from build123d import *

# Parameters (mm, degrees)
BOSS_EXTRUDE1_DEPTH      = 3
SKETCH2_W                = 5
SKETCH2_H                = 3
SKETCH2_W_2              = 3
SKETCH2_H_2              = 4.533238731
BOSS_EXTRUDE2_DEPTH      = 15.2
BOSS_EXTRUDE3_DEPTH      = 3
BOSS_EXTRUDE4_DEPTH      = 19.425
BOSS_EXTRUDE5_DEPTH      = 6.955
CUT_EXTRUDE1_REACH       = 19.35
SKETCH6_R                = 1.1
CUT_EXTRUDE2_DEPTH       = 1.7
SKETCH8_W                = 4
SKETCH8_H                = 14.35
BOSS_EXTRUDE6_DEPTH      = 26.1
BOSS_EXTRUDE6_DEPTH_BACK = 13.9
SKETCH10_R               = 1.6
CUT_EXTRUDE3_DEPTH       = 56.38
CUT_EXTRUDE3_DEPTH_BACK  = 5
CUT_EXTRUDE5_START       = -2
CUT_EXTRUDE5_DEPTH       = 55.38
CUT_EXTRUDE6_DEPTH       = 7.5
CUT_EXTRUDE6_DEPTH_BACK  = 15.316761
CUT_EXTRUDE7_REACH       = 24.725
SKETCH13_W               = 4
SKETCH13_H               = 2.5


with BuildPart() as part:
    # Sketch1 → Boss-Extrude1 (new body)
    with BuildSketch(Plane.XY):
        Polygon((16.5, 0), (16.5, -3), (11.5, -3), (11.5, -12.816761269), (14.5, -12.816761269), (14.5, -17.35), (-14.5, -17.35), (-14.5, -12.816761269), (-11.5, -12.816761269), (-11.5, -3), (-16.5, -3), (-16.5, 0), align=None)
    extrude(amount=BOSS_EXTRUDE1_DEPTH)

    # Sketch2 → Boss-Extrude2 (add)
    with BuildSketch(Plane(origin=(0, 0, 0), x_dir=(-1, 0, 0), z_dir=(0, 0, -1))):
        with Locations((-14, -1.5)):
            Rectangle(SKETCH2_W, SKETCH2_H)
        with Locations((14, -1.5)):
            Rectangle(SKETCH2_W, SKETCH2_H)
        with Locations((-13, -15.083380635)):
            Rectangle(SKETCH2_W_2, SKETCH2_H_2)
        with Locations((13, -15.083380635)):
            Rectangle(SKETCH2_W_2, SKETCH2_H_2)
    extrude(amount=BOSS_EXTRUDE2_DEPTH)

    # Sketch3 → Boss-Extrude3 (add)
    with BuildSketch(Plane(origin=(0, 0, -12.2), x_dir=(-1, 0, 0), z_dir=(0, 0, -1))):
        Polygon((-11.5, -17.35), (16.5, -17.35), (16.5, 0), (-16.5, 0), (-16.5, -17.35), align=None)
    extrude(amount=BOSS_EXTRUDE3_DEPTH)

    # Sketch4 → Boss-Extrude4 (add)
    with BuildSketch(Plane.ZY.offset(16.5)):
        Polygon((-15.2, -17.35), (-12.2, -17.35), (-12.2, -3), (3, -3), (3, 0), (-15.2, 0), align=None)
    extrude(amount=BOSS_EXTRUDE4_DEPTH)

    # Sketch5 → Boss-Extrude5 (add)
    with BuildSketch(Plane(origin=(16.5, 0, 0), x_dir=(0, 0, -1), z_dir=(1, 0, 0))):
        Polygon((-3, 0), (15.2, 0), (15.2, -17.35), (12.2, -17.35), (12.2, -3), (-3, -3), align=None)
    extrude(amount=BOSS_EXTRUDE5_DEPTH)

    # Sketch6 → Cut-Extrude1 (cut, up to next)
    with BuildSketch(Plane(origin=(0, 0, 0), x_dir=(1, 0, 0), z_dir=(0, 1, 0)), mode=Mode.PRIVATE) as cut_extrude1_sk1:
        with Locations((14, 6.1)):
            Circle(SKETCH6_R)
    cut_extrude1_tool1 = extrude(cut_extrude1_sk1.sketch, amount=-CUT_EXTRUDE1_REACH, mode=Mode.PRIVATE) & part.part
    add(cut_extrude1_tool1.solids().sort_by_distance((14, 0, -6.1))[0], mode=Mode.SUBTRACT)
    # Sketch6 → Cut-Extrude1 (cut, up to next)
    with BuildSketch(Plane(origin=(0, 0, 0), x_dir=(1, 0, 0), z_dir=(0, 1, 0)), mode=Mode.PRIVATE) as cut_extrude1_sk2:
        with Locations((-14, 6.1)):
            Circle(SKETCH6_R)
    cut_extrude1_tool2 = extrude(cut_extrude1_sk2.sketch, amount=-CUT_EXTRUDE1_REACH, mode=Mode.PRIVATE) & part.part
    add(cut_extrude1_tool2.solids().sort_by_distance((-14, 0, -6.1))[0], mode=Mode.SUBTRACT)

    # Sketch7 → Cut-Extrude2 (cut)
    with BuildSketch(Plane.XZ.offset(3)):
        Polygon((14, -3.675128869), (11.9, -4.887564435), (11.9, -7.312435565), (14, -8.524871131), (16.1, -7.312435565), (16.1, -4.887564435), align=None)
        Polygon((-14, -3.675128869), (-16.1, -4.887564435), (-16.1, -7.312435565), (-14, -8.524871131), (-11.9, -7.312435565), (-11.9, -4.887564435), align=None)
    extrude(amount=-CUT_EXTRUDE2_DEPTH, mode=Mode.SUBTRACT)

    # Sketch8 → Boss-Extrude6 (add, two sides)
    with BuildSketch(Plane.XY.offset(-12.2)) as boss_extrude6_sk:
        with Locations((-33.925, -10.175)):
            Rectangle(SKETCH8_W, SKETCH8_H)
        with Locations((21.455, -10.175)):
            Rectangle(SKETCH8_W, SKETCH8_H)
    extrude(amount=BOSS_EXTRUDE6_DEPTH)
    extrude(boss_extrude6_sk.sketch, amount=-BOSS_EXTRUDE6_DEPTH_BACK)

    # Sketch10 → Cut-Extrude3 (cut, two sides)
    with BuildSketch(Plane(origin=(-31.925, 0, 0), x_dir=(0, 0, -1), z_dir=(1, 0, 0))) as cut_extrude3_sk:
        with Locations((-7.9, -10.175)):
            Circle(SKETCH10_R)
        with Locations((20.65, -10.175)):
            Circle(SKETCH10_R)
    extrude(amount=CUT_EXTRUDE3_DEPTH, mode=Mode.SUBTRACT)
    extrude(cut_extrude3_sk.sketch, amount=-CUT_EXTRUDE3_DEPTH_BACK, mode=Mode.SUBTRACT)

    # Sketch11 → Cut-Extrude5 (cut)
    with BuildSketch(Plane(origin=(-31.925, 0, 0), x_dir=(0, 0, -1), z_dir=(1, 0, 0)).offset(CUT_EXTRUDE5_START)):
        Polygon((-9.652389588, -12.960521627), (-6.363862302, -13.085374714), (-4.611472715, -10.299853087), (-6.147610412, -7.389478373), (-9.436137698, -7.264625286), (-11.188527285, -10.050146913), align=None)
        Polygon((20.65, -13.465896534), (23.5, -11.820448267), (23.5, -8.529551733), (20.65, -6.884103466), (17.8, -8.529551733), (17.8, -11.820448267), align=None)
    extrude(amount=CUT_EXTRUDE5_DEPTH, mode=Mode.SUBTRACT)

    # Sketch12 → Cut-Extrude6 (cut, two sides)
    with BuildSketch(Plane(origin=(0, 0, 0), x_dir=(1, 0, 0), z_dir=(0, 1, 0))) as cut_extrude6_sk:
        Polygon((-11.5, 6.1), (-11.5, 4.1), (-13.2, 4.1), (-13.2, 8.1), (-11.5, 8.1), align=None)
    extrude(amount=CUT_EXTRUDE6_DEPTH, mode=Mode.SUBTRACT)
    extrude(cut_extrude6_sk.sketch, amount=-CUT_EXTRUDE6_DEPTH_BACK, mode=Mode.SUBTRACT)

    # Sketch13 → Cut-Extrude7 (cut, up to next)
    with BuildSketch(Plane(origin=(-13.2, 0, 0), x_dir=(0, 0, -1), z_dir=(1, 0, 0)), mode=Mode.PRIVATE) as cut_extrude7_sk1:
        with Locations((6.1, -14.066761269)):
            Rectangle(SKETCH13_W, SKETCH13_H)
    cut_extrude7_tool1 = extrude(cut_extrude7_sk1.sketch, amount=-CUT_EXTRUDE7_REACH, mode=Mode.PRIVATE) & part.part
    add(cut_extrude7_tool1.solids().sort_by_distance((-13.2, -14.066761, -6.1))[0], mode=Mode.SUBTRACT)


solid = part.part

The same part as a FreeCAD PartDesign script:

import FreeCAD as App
import Part
import Sketcher
from FreeCAD import Vector
Q = App.Units.Quantity

doc = App.newDocument("Part")
body = doc.addObject("PartDesign::Body", "Body")

# Sketch on XY plane
sketch1 = body.newObject("Sketcher::SketchObject", "Sketch")
sketch1.AttachmentSupport = (doc.getObject("XY_Plane"), [""])
sketch1.MapMode = "FlatFace"
sketch1.addGeometry([
    Part.LineSegment(Vector(16.5, -3, 0), Vector(16.5, 0, 0)),  # 0
    Part.LineSegment(Vector(16.5, 0, 0), Vector(-16.5, 0, 0)),  # 1
    Part.LineSegment(Vector(-16.5, 0, 0), Vector(-16.5, -3, 0)),  # 2
    Part.LineSegment(Vector(-16.5, -3, 0), Vector(-11.5, -3, 0)),  # 3
    Part.LineSegment(Vector(-11.5, -3, 0), Vector(-11.5, -12.816761, 0)),  # 4
    Part.LineSegment(Vector(-11.5, -12.816761, 0), Vector(-14.5, -12.816761, 0)),  # 5
    Part.LineSegment(Vector(-14.5, -12.816761, 0), Vector(-14.5, -17.35, 0)),  # 6
    Part.LineSegment(Vector(-14.5, -17.35, 0), Vector(14.5, -17.35, 0)),  # 7
    Part.LineSegment(Vector(14.5, -17.35, 0), Vector(14.5, -12.816761, 0)),  # 8
    Part.LineSegment(Vector(14.5, -12.816761, 0), Vector(11.5, -12.816761, 0)),  # 9
    Part.LineSegment(Vector(11.5, -12.816761, 0), Vector(11.5, -3, 0)),  # 10
    Part.LineSegment(Vector(11.5, -3, 0), Vector(16.5, -3, 0)),  # 11
], False)
sketch1.addConstraint([
    Sketcher.Constraint("Coincident", 0, 2, 1, 1),
    Sketcher.Constraint("Coincident", 1, 2, 2, 1),
    Sketcher.Constraint("Coincident", 2, 2, 3, 1),
    Sketcher.Constraint("Coincident", 3, 2, 4, 1),
    Sketcher.Constraint("Coincident", 4, 2, 5, 1),
    Sketcher.Constraint("Coincident", 5, 2, 6, 1),
    Sketcher.Constraint("Coincident", 6, 2, 7, 1),
    Sketcher.Constraint("Coincident", 7, 2, 8, 1),
    Sketcher.Constraint("Coincident", 8, 2, 9, 1),
    Sketcher.Constraint("Coincident", 9, 2, 10, 1),
    Sketcher.Constraint("Coincident", 10, 2, 11, 1),
    Sketcher.Constraint("Coincident", 11, 2, 0, 1),
    Sketcher.Constraint("Vertical", 0),
    Sketcher.Constraint("Horizontal", 1),
    Sketcher.Constraint("Vertical", 2),
    Sketcher.Constraint("Horizontal", 3),
    Sketcher.Constraint("Vertical", 4),
    Sketcher.Constraint("Horizontal", 5),
    Sketcher.Constraint("Vertical", 6),
    Sketcher.Constraint("Horizontal", 7),
    Sketcher.Constraint("Vertical", 8),
    Sketcher.Constraint("Horizontal", 9),
    Sketcher.Constraint("Vertical", 10),
    Sketcher.Constraint("Horizontal", 11),
    Sketcher.Constraint("Symmetric", 0, 2, 1, 2, -1, 1),
    Sketcher.Constraint("Symmetric", 5, 2, 8, 2, -2),
    Sketcher.Constraint("Symmetric", 3, 2, 10, 2, -2),
    Sketcher.Constraint("Equal", 9, 0),
    Sketcher.Constraint("DistanceX", 1, 2, 1, 1, 33.0),
    Sketcher.Constraint("DistanceX", 3, 1, 3, 2, 5.0),
    Sketcher.Constraint("DistanceX", 5, 2, 5, 1, 3.0),
    Sketcher.Constraint("DistanceY", 6, 2, -1, 1, 17.35),
    Sketcher.Constraint("DistanceY", 4, 2, 4, 1, 9.816761),
])
pad1 = body.newObject("PartDesign::Pad", "Pad")
pad1.Profile = sketch1
pad1.Length = 3

# Sketch on XY plane
sketch2 = body.newObject("Sketcher::SketchObject", "Sketch001")
sketch2.AttachmentSupport = (doc.getObject("XY_Plane"), [""])
sketch2.MapMode = "FlatFace"
sketch2.addGeometry([
    Part.LineSegment(Vector(16.5, 0, 0), Vector(16.5, -3, 0)),  # 0
    Part.LineSegment(Vector(16.5, -3, 0), Vector(11.5, -3, 0)),  # 1
    Part.LineSegment(Vector(11.5, -3, 0), Vector(11.5, 0, 0)),  # 2
    Part.LineSegment(Vector(11.5, 0, 0), Vector(16.5, 0, 0)),  # 3
    Part.LineSegment(Vector(-11.5, 0, 0), Vector(-11.5, -3, 0)),  # 4
    Part.LineSegment(Vector(-11.5, -3, 0), Vector(-16.5, -3, 0)),  # 5
    Part.LineSegment(Vector(-16.5, -3, 0), Vector(-16.5, 0, 0)),  # 6
    Part.LineSegment(Vector(-16.5, 0, 0), Vector(-11.5, 0, 0)),  # 7
    Part.LineSegment(Vector(14.5, -12.816761, 0), Vector(14.5, -17.35, 0)),  # 8
    Part.LineSegment(Vector(14.5, -17.35, 0), Vector(11.5, -17.35, 0)),  # 9
    Part.LineSegment(Vector(11.5, -17.35, 0), Vector(11.5, -12.816761, 0)),  # 10
    Part.LineSegment(Vector(11.5, -12.816761, 0), Vector(14.5, -12.816761, 0)),  # 11
    Part.LineSegment(Vector(-11.5, -12.816761, 0), Vector(-11.5, -17.35, 0)),  # 12
    Part.LineSegment(Vector(-11.5, -17.35, 0), Vector(-14.5, -17.35, 0)),  # 13
    Part.LineSegment(Vector(-14.5, -17.35, 0), Vector(-14.5, -12.816761, 0)),  # 14
    Part.LineSegment(Vector(-14.5, -12.816761, 0), Vector(-11.5, -12.816761, 0)),  # 15
], False)
sketch2.addConstraint([
    Sketcher.Constraint("Coincident", 0, 2, 1, 1),
    Sketcher.Constraint("Coincident", 1, 2, 2, 1),
    Sketcher.Constraint("Coincident", 2, 2, 3, 1),
    Sketcher.Constraint("Coincident", 3, 2, 0, 1),
    Sketcher.Constraint("Coincident", 4, 2, 5, 1),
    Sketcher.Constraint("Coincident", 5, 2, 6, 1),
    Sketcher.Constraint("Coincident", 6, 2, 7, 1),
    Sketcher.Constraint("Coincident", 7, 2, 4, 1),
    Sketcher.Constraint("Coincident", 8, 2, 9, 1),
    Sketcher.Constraint("Coincident", 9, 2, 10, 1),
    Sketcher.Constraint("Coincident", 10, 2, 11, 1),
    Sketcher.Constraint("Coincident", 11, 2, 8, 1),
    Sketcher.Constraint("Coincident", 12, 2, 13, 1),
    Sketcher.Constraint("Coincident", 13, 2, 14, 1),
    Sketcher.Constraint("Coincident", 14, 2, 15, 1),
    Sketcher.Constraint("Coincident", 15, 2, 12, 1),
    Sketcher.Constraint("Vertical", 0),
    Sketcher.Constraint("Horizontal", 1),
    Sketcher.Constraint("Vertical", 2),
    Sketcher.Constraint("Horizontal", 3),
    Sketcher.Constraint("Vertical", 4),
    Sketcher.Constraint("Horizontal", 5),
    Sketcher.Constraint("Vertical", 6),
    Sketcher.Constraint("Horizontal", 7),
    Sketcher.Constraint("Vertical", 8),
    Sketcher.Constraint("Horizontal", 9),
    Sketcher.Constraint("Vertical", 10),
    Sketcher.Constraint("Horizontal", 11),
    Sketcher.Constraint("Vertical", 12),
    Sketcher.Constraint("Horizontal", 13),
    Sketcher.Constraint("Vertical", 14),
    Sketcher.Constraint("Horizontal", 15),
    Sketcher.Constraint("Symmetric", 3, 2, 6, 2, -1, 1),
    Sketcher.Constraint("Symmetric", 1, 2, 4, 2, -2),
    Sketcher.Constraint("Symmetric", 9, 2, 12, 2, -2),
    Sketcher.Constraint("Symmetric", 11, 2, 14, 2, -2),
    Sketcher.Constraint("PointOnObject", 2, 2, -1),
    Sketcher.Constraint("Vertical", 2, 2, 9, 2),
    Sketcher.Constraint("Equal", 15, 0),
    Sketcher.Constraint("DistanceX", 1, 2, 1, 1, 5.0),
    Sketcher.Constraint("DistanceX", 9, 2, 9, 1, 3.0),
    Sketcher.Constraint("DistanceX", 4, 2, 1, 2, 23.0),
    Sketcher.Constraint("DistanceY", 8, 2, -1, 1, 17.35),
    Sketcher.Constraint("DistanceY", 8, 2, 8, 1, 4.533239),
])
pad2 = body.newObject("PartDesign::Pad", "Pad001")
pad2.Profile = sketch2
pad2.Length = 15.2
pad2.Reversed = True

# Sketch on XY plane
sketch3 = body.newObject("Sketcher::SketchObject", "Sketch002")
sketch3.AttachmentSupport = (doc.getObject("XY_Plane"), [""])
sketch3.MapMode = "FlatFace"
sketch3.AttachmentOffset = App.Placement(Vector(0, 0, -12.2), App.Rotation())
sketch3.addGeometry([
    Part.LineSegment(Vector(-16.5, -17.35, 0), Vector(-16.5, 0, 0)),
    Part.LineSegment(Vector(-16.5, 0, 0), Vector(16.5, 0, 0)),
    Part.LineSegment(Vector(16.5, 0, 0), Vector(16.5, -17.35, 0)),
    Part.LineSegment(Vector(16.5, -17.35, 0), Vector(-16.5, -17.35, 0)),
], False)
sketch3.addConstraint([
    Sketcher.Constraint("Coincident", 0, 2, 1, 1),
    Sketcher.Constraint("Coincident", 1, 2, 2, 1),
    Sketcher.Constraint("Coincident", 2, 2, 3, 1),
    Sketcher.Constraint("Coincident", 3, 2, 0, 1),
    Sketcher.Constraint("Vertical", 0),
    Sketcher.Constraint("Horizontal", 1),
    Sketcher.Constraint("Vertical", 2),
    Sketcher.Constraint("Horizontal", 3),
    Sketcher.Constraint("Symmetric", 0, 2, 1, 2, -1, 1),
    Sketcher.Constraint("DistanceX", 1, 1, 1, 2, 33.0),
    Sketcher.Constraint("DistanceY", 0, 1, 0, 2, 17.35),
])
pad3 = body.newObject("PartDesign::Pad", "Pad002")
pad3.Profile = sketch3
pad3.Length = 3
pad3.Reversed = True

# Sketch on YZ plane
sketch4 = body.newObject("Sketcher::SketchObject", "Sketch003")
sketch4.AttachmentSupport = (doc.getObject("YZ_Plane"), [""])
sketch4.MapMode = "FlatFace"
sketch4.AttachmentOffset = App.Placement(Vector(0, 0, -16.5), App.Rotation())
sketch4.addGeometry([
    Part.LineSegment(Vector(-17.35, -15.2, 0), Vector(-17.35, -12.2, 0)),  # 0
    Part.LineSegment(Vector(-17.35, -12.2, 0), Vector(-3, -12.2, 0)),  # 1
    Part.LineSegment(Vector(-3, -12.2, 0), Vector(-3, 3, 0)),  # 2
    Part.LineSegment(Vector(-3, 3, 0), Vector(0, 3, 0)),  # 3
    Part.LineSegment(Vector(0, 3, 0), Vector(0, -15.2, 0)),  # 4
    Part.LineSegment(Vector(0, -15.2, 0), Vector(-17.35, -15.2, 0)),  # 5
], False)
sketch4.addConstraint([
    Sketcher.Constraint("Coincident", 0, 2, 1, 1),
    Sketcher.Constraint("Coincident", 1, 2, 2, 1),
    Sketcher.Constraint("Coincident", 2, 2, 3, 1),
    Sketcher.Constraint("Coincident", 3, 2, 4, 1),
    Sketcher.Constraint("Coincident", 4, 2, 5, 1),
    Sketcher.Constraint("Coincident", 5, 2, 0, 1),
    Sketcher.Constraint("Vertical", 0),
    Sketcher.Constraint("Horizontal", 1),
    Sketcher.Constraint("Vertical", 2),
    Sketcher.Constraint("Horizontal", 3),
    Sketcher.Constraint("Vertical", 4),
    Sketcher.Constraint("Horizontal", 5),
    Sketcher.Constraint("PointOnObject", 3, 2, -2),
    Sketcher.Constraint("Equal", 3, 0),
    Sketcher.Constraint("DistanceX", 3, 1, 3, 2, 3.0),
    Sketcher.Constraint("DistanceY", 2, 1, 2, 2, 15.2),
    Sketcher.Constraint("DistanceY", -1, 1, 2, 2, 3.0),
    Sketcher.Constraint("DistanceX", 1, 1, 1, 2, 14.35),
])
pad4 = body.newObject("PartDesign::Pad", "Pad003")
pad4.Profile = sketch4
pad4.Length = 19.425
pad4.Reversed = True

# Sketch on YZ plane
sketch5 = body.newObject("Sketcher::SketchObject", "Sketch004")
sketch5.AttachmentSupport = (doc.getObject("YZ_Plane"), [""])
sketch5.MapMode = "FlatFace"
sketch5.AttachmentOffset = App.Placement(Vector(0, 0, 16.5), App.Rotation())
sketch5.addGeometry([
    Part.LineSegment(Vector(0, -15.2, 0), Vector(0, 3, 0)),  # 0
    Part.LineSegment(Vector(0, 3, 0), Vector(-3, 3, 0)),  # 1
    Part.LineSegment(Vector(-3, 3, 0), Vector(-3, -12.2, 0)),  # 2
    Part.LineSegment(Vector(-3, -12.2, 0), Vector(-17.35, -12.2, 0)),  # 3
    Part.LineSegment(Vector(-17.35, -12.2, 0), Vector(-17.35, -15.2, 0)),  # 4
    Part.LineSegment(Vector(-17.35, -15.2, 0), Vector(0, -15.2, 0)),  # 5
], False)
sketch5.addConstraint([
    Sketcher.Constraint("Coincident", 0, 2, 1, 1),
    Sketcher.Constraint("Coincident", 1, 2, 2, 1),
    Sketcher.Constraint("Coincident", 2, 2, 3, 1),
    Sketcher.Constraint("Coincident", 3, 2, 4, 1),
    Sketcher.Constraint("Coincident", 4, 2, 5, 1),
    Sketcher.Constraint("Coincident", 5, 2, 0, 1),
    Sketcher.Constraint("Vertical", 0),
    Sketcher.Constraint("Horizontal", 1),
    Sketcher.Constraint("Vertical", 2),
    Sketcher.Constraint("Horizontal", 3),
    Sketcher.Constraint("Vertical", 4),
    Sketcher.Constraint("Horizontal", 5),
    Sketcher.Constraint("PointOnObject", 0, 2, -2),
    Sketcher.Constraint("Equal", 1, 4),
    Sketcher.Constraint("DistanceX", 1, 2, 1, 1, 3.0),
    Sketcher.Constraint("DistanceY", 0, 1, 0, 2, 18.2),
    Sketcher.Constraint("DistanceY", -1, 1, 0, 2, 3.0),
    Sketcher.Constraint("DistanceX", 3, 2, 3, 1, 14.35),
])
pad5 = body.newObject("PartDesign::Pad", "Pad004")
pad5.Profile = sketch5
pad5.Length = 6.955

# Sketch on XZ plane
sketch6 = body.newObject("Sketcher::SketchObject", "Sketch005")
sketch6.AttachmentSupport = (doc.getObject("XZ_Plane"), [""])
sketch6.MapMode = "FlatFace"
sketch6.addGeometry(Part.Circle(Vector(14, -6.1, 0), Vector(0, 0, 1), 1.1), False)
sketch6.addConstraint([
    Sketcher.Constraint("Diameter", 0, 2.2),
    Sketcher.Constraint("DistanceX", -1, 1, 0, 3, 14.0),
    Sketcher.Constraint("DistanceY", 0, 3, -1, 1, 6.1),
])
pocket1 = body.newObject("PartDesign::Pocket", "Pocket")
pocket1.Profile = sketch6
pocket1.Type = "UpToFirst"
pocket1.Reversed = True

# Sketch on XZ plane
sketch7 = body.newObject("Sketcher::SketchObject", "Sketch006")
sketch7.AttachmentSupport = (doc.getObject("XZ_Plane"), [""])
sketch7.MapMode = "FlatFace"
sketch7.addGeometry(Part.Circle(Vector(-14, -6.1, 0), Vector(0, 0, 1), 1.1), False)
sketch7.addConstraint([
    Sketcher.Constraint("Diameter", 0, 2.2),
    Sketcher.Constraint("DistanceX", 0, 3, -1, 1, 14.0),
    Sketcher.Constraint("DistanceY", 0, 3, -1, 1, 6.1),
])
pocket2 = body.newObject("PartDesign::Pocket", "Pocket001")
pocket2.Profile = sketch7
pocket2.Type = "UpToFirst"
pocket2.Reversed = True

# Sketch on XZ plane
sketch8 = body.newObject("Sketcher::SketchObject", "Sketch007")
sketch8.AttachmentSupport = (doc.getObject("XZ_Plane"), [""])
sketch8.MapMode = "FlatFace"
sketch8.AttachmentOffset = App.Placement(Vector(0, 0, 3), App.Rotation())
sketch8.addGeometry([
    Part.LineSegment(Vector(14, -3.675129, 0), Vector(11.9, -4.887564, 0)),  # 0
    Part.LineSegment(Vector(11.9, -4.887564, 0), Vector(11.9, -7.312436, 0)),  # 1
    Part.LineSegment(Vector(11.9, -7.312436, 0), Vector(14, -8.524871, 0)),  # 2
    Part.LineSegment(Vector(14, -8.524871, 0), Vector(16.1, -7.312436, 0)),  # 3
    Part.LineSegment(Vector(16.1, -7.312436, 0), Vector(16.1, -4.887564, 0)),  # 4
    Part.LineSegment(Vector(16.1, -4.887564, 0), Vector(14, -3.675129, 0)),  # 5
    Part.LineSegment(Vector(-14, -3.675129, 0), Vector(-16.1, -4.887564, 0)),  # 6
    Part.LineSegment(Vector(-16.1, -4.887564, 0), Vector(-16.1, -7.312436, 0)),  # 7
    Part.LineSegment(Vector(-16.1, -7.312436, 0), Vector(-14, -8.524871, 0)),  # 8
    Part.LineSegment(Vector(-14, -8.524871, 0), Vector(-11.9, -7.312436, 0)),  # 9
    Part.LineSegment(Vector(-11.9, -7.312436, 0), Vector(-11.9, -4.887564, 0)),  # 10
    Part.LineSegment(Vector(-11.9, -4.887564, 0), Vector(-14, -3.675129, 0)),  # 11
], False)
sketch8.addConstraint([
    Sketcher.Constraint("Coincident", 0, 2, 1, 1),
    Sketcher.Constraint("Coincident", 1, 2, 2, 1),
    Sketcher.Constraint("Coincident", 2, 2, 3, 1),
    Sketcher.Constraint("Coincident", 3, 2, 4, 1),
    Sketcher.Constraint("Coincident", 4, 2, 5, 1),
    Sketcher.Constraint("Coincident", 5, 2, 0, 1),
    Sketcher.Constraint("Coincident", 6, 2, 7, 1),
    Sketcher.Constraint("Coincident", 7, 2, 8, 1),
    Sketcher.Constraint("Coincident", 8, 2, 9, 1),
    Sketcher.Constraint("Coincident", 9, 2, 10, 1),
    Sketcher.Constraint("Coincident", 10, 2, 11, 1),
    Sketcher.Constraint("Coincident", 11, 2, 6, 1),
    Sketcher.Constraint("Vertical", 1),
    Sketcher.Constraint("Vertical", 4),
    Sketcher.Constraint("Vertical", 7),
    Sketcher.Constraint("Vertical", 10),
    Sketcher.Constraint("Symmetric", 4, 2, 6, 2, -2),
    Sketcher.Constraint("Symmetric", 2, 2, 8, 2, -2),
    Sketcher.Constraint("Symmetric", 1, 2, 9, 2, -2),
    Sketcher.Constraint("Symmetric", 5, 2, 11, 2, -2),
    Sketcher.Constraint("Parallel", 0, 3),
    Sketcher.Constraint("Parallel", 2, 5),
    Sketcher.Constraint("Parallel", 3, 6),
    Sketcher.Constraint("Parallel", 5, 8),
    Sketcher.Constraint("Parallel", 8, 11),
    Sketcher.Constraint("Horizontal", 1, 2, 3, 2),
    Sketcher.Constraint("Horizontal", 0, 2, 4, 2),
    Sketcher.Constraint("Angle", 0, Q("-150 deg")),
    Sketcher.Constraint("DistanceX", -1, 1, 2, 2, 14.0),
    Sketcher.Constraint("DistanceX", -1, 1, 0, 2, 11.9),
    Sketcher.Constraint("DistanceY", 1, 2, 1, 1, 2.424871),
    Sketcher.Constraint("DistanceY", 2, 2, -1, 1, 8.524871),
])
pocket3 = body.newObject("PartDesign::Pocket", "Pocket002")
pocket3.Profile = sketch8
pocket3.Length = 1.7

# Sketch on XY plane
sketch9 = body.newObject("Sketcher::SketchObject", "Sketch008")
sketch9.AttachmentSupport = (doc.getObject("XY_Plane"), [""])
sketch9.MapMode = "FlatFace"
sketch9.AttachmentOffset = App.Placement(Vector(0, 0, -12.2), App.Rotation())
sketch9.addGeometry([
    Part.LineSegment(Vector(-35.925, -3, 0), Vector(-35.925, -17.35, 0)),  # 0
    Part.LineSegment(Vector(-35.925, -17.35, 0), Vector(-31.925, -17.35, 0)),  # 1
    Part.LineSegment(Vector(-31.925, -17.35, 0), Vector(-31.925, -3, 0)),  # 2
    Part.LineSegment(Vector(-31.925, -3, 0), Vector(-35.925, -3, 0)),  # 3
    Part.LineSegment(Vector(19.455, -3, 0), Vector(19.455, -17.35, 0)),  # 4
    Part.LineSegment(Vector(19.455, -17.35, 0), Vector(23.455, -17.35, 0)),  # 5
    Part.LineSegment(Vector(23.455, -17.35, 0), Vector(23.455, -3, 0)),  # 6
    Part.LineSegment(Vector(23.455, -3, 0), Vector(19.455, -3, 0)),  # 7
], False)
sketch9.addConstraint([
    Sketcher.Constraint("Coincident", 0, 2, 1, 1),
    Sketcher.Constraint("Coincident", 1, 2, 2, 1),
    Sketcher.Constraint("Coincident", 2, 2, 3, 1),
    Sketcher.Constraint("Coincident", 3, 2, 0, 1),
    Sketcher.Constraint("Coincident", 4, 2, 5, 1),
    Sketcher.Constraint("Coincident", 5, 2, 6, 1),
    Sketcher.Constraint("Coincident", 6, 2, 7, 1),
    Sketcher.Constraint("Coincident", 7, 2, 4, 1),
    Sketcher.Constraint("Vertical", 0),
    Sketcher.Constraint("Horizontal", 1),
    Sketcher.Constraint("Vertical", 2),
    Sketcher.Constraint("Horizontal", 3),
    Sketcher.Constraint("Vertical", 4),
    Sketcher.Constraint("Horizontal", 5),
    Sketcher.Constraint("Vertical", 6),
    Sketcher.Constraint("Horizontal", 7),
    Sketcher.Constraint("Horizontal", 1, 2, 4, 2),
    Sketcher.Constraint("Horizontal", 3, 2, 6, 2),
    Sketcher.Constraint("Equal", 3, 5),
    Sketcher.Constraint("DistanceX", 1, 1, 1, 2, 4.0),
    Sketcher.Constraint("DistanceY", 2, 2, -1, 1, 3.0),
    Sketcher.Constraint("DistanceY", 0, 2, 0, 1, 14.35),
    Sketcher.Constraint("DistanceX", 1, 2, 4, 2, 51.38),
    Sketcher.Constraint("DistanceX", 0, 2, -1, 1, 35.925),
])
pad6 = body.newObject("PartDesign::Pad", "Pad005")
pad6.Profile = sketch9
pad6.Type = "TwoLengths"
pad6.Length = 26.1
pad6.Length2 = 13.9

# Sketch on YZ plane
sketch10 = body.newObject("Sketcher::SketchObject", "Sketch009")
sketch10.AttachmentSupport = (doc.getObject("YZ_Plane"), [""])
sketch10.MapMode = "FlatFace"
sketch10.AttachmentOffset = App.Placement(Vector(0, 0, -31.925), App.Rotation())
sketch10.addGeometry([
    Part.Circle(Vector(-10.175, 7.9, 0), Vector(0, 0, 1), 1.6),
    Part.Circle(Vector(-10.175, -20.65, 0), Vector(0, 0, 1), 1.6),
], False)
sketch10.addConstraint([
    Sketcher.Constraint("Equal", 0, 1),
    Sketcher.Constraint("Vertical", 0, 3, 1, 3),
    Sketcher.Constraint("Diameter", 0, 3.2),
    Sketcher.Constraint("DistanceY", -1, 1, 0, 3, 7.9),
    Sketcher.Constraint("DistanceY", 1, 3, -1, 1, 20.65),
    Sketcher.Constraint("DistanceX", 0, 3, -1, 1, 10.175),
])
pocket4 = body.newObject("PartDesign::Pocket", "Pocket003")
pocket4.Profile = sketch10
pocket4.Type = "ThroughAll"
pocket4.Midplane = True

# Sketch on YZ plane
sketch11 = body.newObject("Sketcher::SketchObject", "Sketch010")
sketch11.AttachmentSupport = (doc.getObject("YZ_Plane"), [""])
sketch11.MapMode = "FlatFace"
sketch11.AttachmentOffset = App.Placement(Vector(0, 0, -33.925), App.Rotation())
sketch11.addGeometry([
    Part.LineSegment(Vector(-12.960522, 9.65239, 0), Vector(-13.085375, 6.363862, 0)),  # 0
    Part.LineSegment(Vector(-13.085375, 6.363862, 0), Vector(-10.299853, 4.611473, 0)),  # 1
    Part.LineSegment(Vector(-10.299853, 4.611473, 0), Vector(-7.389478, 6.14761, 0)),  # 2
    Part.LineSegment(Vector(-7.389478, 6.14761, 0), Vector(-7.264625, 9.436138, 0)),  # 3
    Part.LineSegment(Vector(-7.264625, 9.436138, 0), Vector(-10.050147, 11.188527, 0)),  # 4
    Part.LineSegment(Vector(-10.050147, 11.188527, 0), Vector(-12.960522, 9.65239, 0)),  # 5
    Part.LineSegment(Vector(-13.465897, -20.65, 0), Vector(-11.820448, -23.5, 0)),  # 6
    Part.LineSegment(Vector(-11.820448, -23.5, 0), Vector(-8.529552, -23.5, 0)),  # 7
    Part.LineSegment(Vector(-8.529552, -23.5, 0), Vector(-6.884103, -20.65, 0)),  # 8
    Part.LineSegment(Vector(-6.884103, -20.65, 0), Vector(-8.529552, -17.8, 0)),  # 9
    Part.LineSegment(Vector(-8.529552, -17.8, 0), Vector(-11.820448, -17.8, 0)),  # 10
    Part.LineSegment(Vector(-11.820448, -17.8, 0), Vector(-13.465897, -20.65, 0)),  # 11
], False)
sketch11.addConstraint([
    Sketcher.Constraint("Coincident", 0, 2, 1, 1),
    Sketcher.Constraint("Coincident", 1, 2, 2, 1),
    Sketcher.Constraint("Coincident", 2, 2, 3, 1),
    Sketcher.Constraint("Coincident", 3, 2, 4, 1),
    Sketcher.Constraint("Coincident", 4, 2, 5, 1),
    Sketcher.Constraint("Coincident", 5, 2, 0, 1),
    Sketcher.Constraint("Coincident", 6, 2, 7, 1),
    Sketcher.Constraint("Coincident", 7, 2, 8, 1),
    Sketcher.Constraint("Coincident", 8, 2, 9, 1),
    Sketcher.Constraint("Coincident", 9, 2, 10, 1),
    Sketcher.Constraint("Coincident", 10, 2, 11, 1),
    Sketcher.Constraint("Coincident", 11, 2, 6, 1),
    Sketcher.Constraint("Horizontal", 7),
    Sketcher.Constraint("Horizontal", 10),
    Sketcher.Constraint("Parallel", 0, 3),
    Sketcher.Constraint("Parallel", 1, 4),
    Sketcher.Constraint("Parallel", 2, 5),
    Sketcher.Constraint("Parallel", 6, 9),
    Sketcher.Constraint("Parallel", 8, 11),
    Sketcher.Constraint("Horizontal", 8, 2, 11, 2),
    Sketcher.Constraint("Vertical", 7, 2, 9, 2),
    Sketcher.Constraint("Vertical", 6, 2, 10, 2),
    Sketcher.Constraint("Equal", 0, 1),
    Sketcher.Constraint("Equal", 1, 2),
    Sketcher.Constraint("Equal", 2, 3),
    Sketcher.Constraint("Equal", 5, 6),
    Sketcher.Constraint("Angle", 6, Q("-60 deg")),
    Sketcher.Constraint("DistanceY", 6, 2, -1, 1, 23.5),
    Sketcher.Constraint("DistanceY", 9, 2, -1, 1, 17.8),
    Sketcher.Constraint("DistanceX", 1, 2, 7, 2, 1.770301),
    Sketcher.Constraint("DistanceX", 7, 1, 7, 2, 3.290897),
    Sketcher.Constraint("DistanceX", 2, 2, -1, 1, 7.389478),
    Sketcher.Constraint("DistanceY", -1, 1, 2, 2, 6.14761),
    Sketcher.Constraint("DistanceX", 5, 2, -1, 1, 12.960522),
    Sketcher.Constraint("DistanceY", -1, 1, 5, 2, 9.65239),
    Sketcher.Constraint("DistanceX", 6, 2, -1, 1, 11.820448),
])
pocket5 = body.newObject("PartDesign::Pocket", "Pocket004")
pocket5.Profile = sketch11
pocket5.Length = 55.38
pocket5.Reversed = True

# Sketch on XZ plane
sketch12 = body.newObject("Sketcher::SketchObject", "Sketch011")
sketch12.AttachmentSupport = (doc.getObject("XZ_Plane"), [""])
sketch12.MapMode = "FlatFace"
sketch12.addGeometry([
    Part.LineSegment(Vector(-11.5, -4.1, 0), Vector(-11.5, -8.1, 0)),
    Part.LineSegment(Vector(-11.5, -8.1, 0), Vector(-13.2, -8.1, 0)),
    Part.LineSegment(Vector(-13.2, -8.1, 0), Vector(-13.2, -4.1, 0)),
    Part.LineSegment(Vector(-13.2, -4.1, 0), Vector(-11.5, -4.1, 0)),
], False)
sketch12.addConstraint([
    Sketcher.Constraint("Coincident", 0, 2, 1, 1),
    Sketcher.Constraint("Coincident", 1, 2, 2, 1),
    Sketcher.Constraint("Coincident", 2, 2, 3, 1),
    Sketcher.Constraint("Coincident", 3, 2, 0, 1),
    Sketcher.Constraint("Vertical", 0),
    Sketcher.Constraint("Horizontal", 1),
    Sketcher.Constraint("Vertical", 2),
    Sketcher.Constraint("Horizontal", 3),
    Sketcher.Constraint("DistanceY", 0, 2, 0, 1, 4.0),
    Sketcher.Constraint("DistanceX", 1, 2, 1, 1, 1.7),
    Sketcher.Constraint("DistanceX", 0, 2, -1, 1, 11.5),
    Sketcher.Constraint("DistanceY", 0, 2, -1, 1, 8.1),
])
pocket6 = body.newObject("PartDesign::Pocket", "Pocket005")
pocket6.Profile = sketch12
pocket6.Type = "TwoLengths"
pocket6.Length = 7.5
pocket6.Length2 = 15.316761

# Sketch on YZ plane
sketch13 = body.newObject("Sketcher::SketchObject", "Sketch012")
sketch13.AttachmentSupport = (doc.getObject("YZ_Plane"), [""])
sketch13.MapMode = "FlatFace"
sketch13.AttachmentOffset = App.Placement(Vector(0, 0, -13.2), App.Rotation())
sketch13.addGeometry([
    Part.LineSegment(Vector(-12.816761, -4.1, 0), Vector(-15.316761, -4.1, 0)),
    Part.LineSegment(Vector(-15.316761, -4.1, 0), Vector(-15.316761, -8.1, 0)),
    Part.LineSegment(Vector(-15.316761, -8.1, 0), Vector(-12.816761, -8.1, 0)),
    Part.LineSegment(Vector(-12.816761, -8.1, 0), Vector(-12.816761, -4.1, 0)),
], False)
sketch13.addConstraint([
    Sketcher.Constraint("Coincident", 0, 2, 1, 1),
    Sketcher.Constraint("Coincident", 1, 2, 2, 1),
    Sketcher.Constraint("Coincident", 2, 2, 3, 1),
    Sketcher.Constraint("Coincident", 3, 2, 0, 1),
    Sketcher.Constraint("Horizontal", 0),
    Sketcher.Constraint("Vertical", 1),
    Sketcher.Constraint("Horizontal", 2),
    Sketcher.Constraint("Vertical", 3),
    Sketcher.Constraint("DistanceY", 1, 2, 1, 1, 4.0),
    Sketcher.Constraint("DistanceX", 0, 2, 0, 1, 2.5),
    Sketcher.Constraint("DistanceY", 0, 2, -1, 1, 4.1),
    Sketcher.Constraint("DistanceX", 0, 2, -1, 1, 15.316761),
])
pocket7 = body.newObject("PartDesign::Pocket", "Pocket006")
pocket7.Profile = sketch13
pocket7.Type = "UpToFirst"

doc.recompute()
